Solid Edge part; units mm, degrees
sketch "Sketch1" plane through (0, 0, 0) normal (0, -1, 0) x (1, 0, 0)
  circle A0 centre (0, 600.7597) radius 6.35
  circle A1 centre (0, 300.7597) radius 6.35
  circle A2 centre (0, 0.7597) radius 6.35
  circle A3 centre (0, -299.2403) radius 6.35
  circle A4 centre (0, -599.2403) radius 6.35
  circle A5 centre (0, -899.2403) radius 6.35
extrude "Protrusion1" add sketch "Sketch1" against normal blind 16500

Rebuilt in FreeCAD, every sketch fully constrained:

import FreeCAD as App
import Part
import Sketcher

V = App.Vector
Q = App.Units.Quantity

doc = App.newDocument("Part")
body = doc.addObject("PartDesign::Body", "Body")
body.AllowCompound = True

# Sketch on XZ plane
sketch1 = body.newObject("Sketcher::SketchObject", "Sketch")
sketch1.AttachmentSupport = (doc.getObject("XZ_Plane"), [""])
sketch1.MapMode = "FlatFace"
sketch1.addGeometry(Part.Circle(V(0, 601, 0), V(0, 0, 1), 6), False)
sketch1.addGeometry(Part.Circle(V(0, 301, 0), V(0, 0, 1), 6), False)
sketch1.addGeometry(Part.Circle(V(0, 1, 0), V(0, 0, 1), 6), False)
sketch1.addGeometry(Part.Circle(V(0, -299, 0), V(0, 0, 1), 6), False)
sketch1.addGeometry(Part.Circle(V(0, -599, 0), V(0, 0, 1), 6), False)
sketch1.addGeometry(Part.Circle(V(0, -899, 0), V(0, 0, 1), 6), False)
sketch1.addConstraint(Sketcher.Constraint("Equal", 0, 1))
sketch1.addConstraint(Sketcher.Constraint("Equal", 1, 2))
sketch1.addConstraint(Sketcher.Constraint("Equal", 2, 3))
sketch1.addConstraint(Sketcher.Constraint("Equal", 3, 4))
sketch1.addConstraint(Sketcher.Constraint("Equal", 4, 5))
sketch1.addConstraint(Sketcher.Constraint("PointOnObject", 0, 3, -2))
sketch1.addConstraint(Sketcher.Constraint("PointOnObject", 1, 3, -2))
sketch1.addConstraint(Sketcher.Constraint("PointOnObject", 2, 3, -2))
sketch1.addConstraint(Sketcher.Constraint("PointOnObject", 3, 3, -2))
sketch1.addConstraint(Sketcher.Constraint("PointOnObject", 4, 3, -2))
sketch1.addConstraint(Sketcher.Constraint("PointOnObject", 5, 3, -2))
sketch1.addConstraint(Sketcher.Constraint("Diameter", 0, Q("0.5 in")))
sketch1.addConstraint(Sketcher.Constraint("DistanceY", -1, 1, 2, 3, Q("0.0299 in")))
sketch1.addConstraint(Sketcher.Constraint("DistanceY", 4, 3, 0, 3, Q("47.2441 in")))
sketch1.addConstraint(Sketcher.Constraint("DistanceY", 5, 3, 1, 3, Q("47.2441 in")))
sketch1.addConstraint(Sketcher.Constraint("DistanceY", -1, 1, 0, 3, 600.7597))
sketch1.addConstraint(Sketcher.Constraint("DistanceY", -1, 1, 1, 3, 300.7597))
sketch1.addConstraint(Sketcher.Constraint("DistanceY", 3, 3, -1, 1, 299.2403))
pad1 = body.newObject("PartDesign::Pad", "Pad")
pad1.Profile = sketch1
pad1.Length = Q("649.6062992 in")
pad1.Reversed = True

doc.recompute()
